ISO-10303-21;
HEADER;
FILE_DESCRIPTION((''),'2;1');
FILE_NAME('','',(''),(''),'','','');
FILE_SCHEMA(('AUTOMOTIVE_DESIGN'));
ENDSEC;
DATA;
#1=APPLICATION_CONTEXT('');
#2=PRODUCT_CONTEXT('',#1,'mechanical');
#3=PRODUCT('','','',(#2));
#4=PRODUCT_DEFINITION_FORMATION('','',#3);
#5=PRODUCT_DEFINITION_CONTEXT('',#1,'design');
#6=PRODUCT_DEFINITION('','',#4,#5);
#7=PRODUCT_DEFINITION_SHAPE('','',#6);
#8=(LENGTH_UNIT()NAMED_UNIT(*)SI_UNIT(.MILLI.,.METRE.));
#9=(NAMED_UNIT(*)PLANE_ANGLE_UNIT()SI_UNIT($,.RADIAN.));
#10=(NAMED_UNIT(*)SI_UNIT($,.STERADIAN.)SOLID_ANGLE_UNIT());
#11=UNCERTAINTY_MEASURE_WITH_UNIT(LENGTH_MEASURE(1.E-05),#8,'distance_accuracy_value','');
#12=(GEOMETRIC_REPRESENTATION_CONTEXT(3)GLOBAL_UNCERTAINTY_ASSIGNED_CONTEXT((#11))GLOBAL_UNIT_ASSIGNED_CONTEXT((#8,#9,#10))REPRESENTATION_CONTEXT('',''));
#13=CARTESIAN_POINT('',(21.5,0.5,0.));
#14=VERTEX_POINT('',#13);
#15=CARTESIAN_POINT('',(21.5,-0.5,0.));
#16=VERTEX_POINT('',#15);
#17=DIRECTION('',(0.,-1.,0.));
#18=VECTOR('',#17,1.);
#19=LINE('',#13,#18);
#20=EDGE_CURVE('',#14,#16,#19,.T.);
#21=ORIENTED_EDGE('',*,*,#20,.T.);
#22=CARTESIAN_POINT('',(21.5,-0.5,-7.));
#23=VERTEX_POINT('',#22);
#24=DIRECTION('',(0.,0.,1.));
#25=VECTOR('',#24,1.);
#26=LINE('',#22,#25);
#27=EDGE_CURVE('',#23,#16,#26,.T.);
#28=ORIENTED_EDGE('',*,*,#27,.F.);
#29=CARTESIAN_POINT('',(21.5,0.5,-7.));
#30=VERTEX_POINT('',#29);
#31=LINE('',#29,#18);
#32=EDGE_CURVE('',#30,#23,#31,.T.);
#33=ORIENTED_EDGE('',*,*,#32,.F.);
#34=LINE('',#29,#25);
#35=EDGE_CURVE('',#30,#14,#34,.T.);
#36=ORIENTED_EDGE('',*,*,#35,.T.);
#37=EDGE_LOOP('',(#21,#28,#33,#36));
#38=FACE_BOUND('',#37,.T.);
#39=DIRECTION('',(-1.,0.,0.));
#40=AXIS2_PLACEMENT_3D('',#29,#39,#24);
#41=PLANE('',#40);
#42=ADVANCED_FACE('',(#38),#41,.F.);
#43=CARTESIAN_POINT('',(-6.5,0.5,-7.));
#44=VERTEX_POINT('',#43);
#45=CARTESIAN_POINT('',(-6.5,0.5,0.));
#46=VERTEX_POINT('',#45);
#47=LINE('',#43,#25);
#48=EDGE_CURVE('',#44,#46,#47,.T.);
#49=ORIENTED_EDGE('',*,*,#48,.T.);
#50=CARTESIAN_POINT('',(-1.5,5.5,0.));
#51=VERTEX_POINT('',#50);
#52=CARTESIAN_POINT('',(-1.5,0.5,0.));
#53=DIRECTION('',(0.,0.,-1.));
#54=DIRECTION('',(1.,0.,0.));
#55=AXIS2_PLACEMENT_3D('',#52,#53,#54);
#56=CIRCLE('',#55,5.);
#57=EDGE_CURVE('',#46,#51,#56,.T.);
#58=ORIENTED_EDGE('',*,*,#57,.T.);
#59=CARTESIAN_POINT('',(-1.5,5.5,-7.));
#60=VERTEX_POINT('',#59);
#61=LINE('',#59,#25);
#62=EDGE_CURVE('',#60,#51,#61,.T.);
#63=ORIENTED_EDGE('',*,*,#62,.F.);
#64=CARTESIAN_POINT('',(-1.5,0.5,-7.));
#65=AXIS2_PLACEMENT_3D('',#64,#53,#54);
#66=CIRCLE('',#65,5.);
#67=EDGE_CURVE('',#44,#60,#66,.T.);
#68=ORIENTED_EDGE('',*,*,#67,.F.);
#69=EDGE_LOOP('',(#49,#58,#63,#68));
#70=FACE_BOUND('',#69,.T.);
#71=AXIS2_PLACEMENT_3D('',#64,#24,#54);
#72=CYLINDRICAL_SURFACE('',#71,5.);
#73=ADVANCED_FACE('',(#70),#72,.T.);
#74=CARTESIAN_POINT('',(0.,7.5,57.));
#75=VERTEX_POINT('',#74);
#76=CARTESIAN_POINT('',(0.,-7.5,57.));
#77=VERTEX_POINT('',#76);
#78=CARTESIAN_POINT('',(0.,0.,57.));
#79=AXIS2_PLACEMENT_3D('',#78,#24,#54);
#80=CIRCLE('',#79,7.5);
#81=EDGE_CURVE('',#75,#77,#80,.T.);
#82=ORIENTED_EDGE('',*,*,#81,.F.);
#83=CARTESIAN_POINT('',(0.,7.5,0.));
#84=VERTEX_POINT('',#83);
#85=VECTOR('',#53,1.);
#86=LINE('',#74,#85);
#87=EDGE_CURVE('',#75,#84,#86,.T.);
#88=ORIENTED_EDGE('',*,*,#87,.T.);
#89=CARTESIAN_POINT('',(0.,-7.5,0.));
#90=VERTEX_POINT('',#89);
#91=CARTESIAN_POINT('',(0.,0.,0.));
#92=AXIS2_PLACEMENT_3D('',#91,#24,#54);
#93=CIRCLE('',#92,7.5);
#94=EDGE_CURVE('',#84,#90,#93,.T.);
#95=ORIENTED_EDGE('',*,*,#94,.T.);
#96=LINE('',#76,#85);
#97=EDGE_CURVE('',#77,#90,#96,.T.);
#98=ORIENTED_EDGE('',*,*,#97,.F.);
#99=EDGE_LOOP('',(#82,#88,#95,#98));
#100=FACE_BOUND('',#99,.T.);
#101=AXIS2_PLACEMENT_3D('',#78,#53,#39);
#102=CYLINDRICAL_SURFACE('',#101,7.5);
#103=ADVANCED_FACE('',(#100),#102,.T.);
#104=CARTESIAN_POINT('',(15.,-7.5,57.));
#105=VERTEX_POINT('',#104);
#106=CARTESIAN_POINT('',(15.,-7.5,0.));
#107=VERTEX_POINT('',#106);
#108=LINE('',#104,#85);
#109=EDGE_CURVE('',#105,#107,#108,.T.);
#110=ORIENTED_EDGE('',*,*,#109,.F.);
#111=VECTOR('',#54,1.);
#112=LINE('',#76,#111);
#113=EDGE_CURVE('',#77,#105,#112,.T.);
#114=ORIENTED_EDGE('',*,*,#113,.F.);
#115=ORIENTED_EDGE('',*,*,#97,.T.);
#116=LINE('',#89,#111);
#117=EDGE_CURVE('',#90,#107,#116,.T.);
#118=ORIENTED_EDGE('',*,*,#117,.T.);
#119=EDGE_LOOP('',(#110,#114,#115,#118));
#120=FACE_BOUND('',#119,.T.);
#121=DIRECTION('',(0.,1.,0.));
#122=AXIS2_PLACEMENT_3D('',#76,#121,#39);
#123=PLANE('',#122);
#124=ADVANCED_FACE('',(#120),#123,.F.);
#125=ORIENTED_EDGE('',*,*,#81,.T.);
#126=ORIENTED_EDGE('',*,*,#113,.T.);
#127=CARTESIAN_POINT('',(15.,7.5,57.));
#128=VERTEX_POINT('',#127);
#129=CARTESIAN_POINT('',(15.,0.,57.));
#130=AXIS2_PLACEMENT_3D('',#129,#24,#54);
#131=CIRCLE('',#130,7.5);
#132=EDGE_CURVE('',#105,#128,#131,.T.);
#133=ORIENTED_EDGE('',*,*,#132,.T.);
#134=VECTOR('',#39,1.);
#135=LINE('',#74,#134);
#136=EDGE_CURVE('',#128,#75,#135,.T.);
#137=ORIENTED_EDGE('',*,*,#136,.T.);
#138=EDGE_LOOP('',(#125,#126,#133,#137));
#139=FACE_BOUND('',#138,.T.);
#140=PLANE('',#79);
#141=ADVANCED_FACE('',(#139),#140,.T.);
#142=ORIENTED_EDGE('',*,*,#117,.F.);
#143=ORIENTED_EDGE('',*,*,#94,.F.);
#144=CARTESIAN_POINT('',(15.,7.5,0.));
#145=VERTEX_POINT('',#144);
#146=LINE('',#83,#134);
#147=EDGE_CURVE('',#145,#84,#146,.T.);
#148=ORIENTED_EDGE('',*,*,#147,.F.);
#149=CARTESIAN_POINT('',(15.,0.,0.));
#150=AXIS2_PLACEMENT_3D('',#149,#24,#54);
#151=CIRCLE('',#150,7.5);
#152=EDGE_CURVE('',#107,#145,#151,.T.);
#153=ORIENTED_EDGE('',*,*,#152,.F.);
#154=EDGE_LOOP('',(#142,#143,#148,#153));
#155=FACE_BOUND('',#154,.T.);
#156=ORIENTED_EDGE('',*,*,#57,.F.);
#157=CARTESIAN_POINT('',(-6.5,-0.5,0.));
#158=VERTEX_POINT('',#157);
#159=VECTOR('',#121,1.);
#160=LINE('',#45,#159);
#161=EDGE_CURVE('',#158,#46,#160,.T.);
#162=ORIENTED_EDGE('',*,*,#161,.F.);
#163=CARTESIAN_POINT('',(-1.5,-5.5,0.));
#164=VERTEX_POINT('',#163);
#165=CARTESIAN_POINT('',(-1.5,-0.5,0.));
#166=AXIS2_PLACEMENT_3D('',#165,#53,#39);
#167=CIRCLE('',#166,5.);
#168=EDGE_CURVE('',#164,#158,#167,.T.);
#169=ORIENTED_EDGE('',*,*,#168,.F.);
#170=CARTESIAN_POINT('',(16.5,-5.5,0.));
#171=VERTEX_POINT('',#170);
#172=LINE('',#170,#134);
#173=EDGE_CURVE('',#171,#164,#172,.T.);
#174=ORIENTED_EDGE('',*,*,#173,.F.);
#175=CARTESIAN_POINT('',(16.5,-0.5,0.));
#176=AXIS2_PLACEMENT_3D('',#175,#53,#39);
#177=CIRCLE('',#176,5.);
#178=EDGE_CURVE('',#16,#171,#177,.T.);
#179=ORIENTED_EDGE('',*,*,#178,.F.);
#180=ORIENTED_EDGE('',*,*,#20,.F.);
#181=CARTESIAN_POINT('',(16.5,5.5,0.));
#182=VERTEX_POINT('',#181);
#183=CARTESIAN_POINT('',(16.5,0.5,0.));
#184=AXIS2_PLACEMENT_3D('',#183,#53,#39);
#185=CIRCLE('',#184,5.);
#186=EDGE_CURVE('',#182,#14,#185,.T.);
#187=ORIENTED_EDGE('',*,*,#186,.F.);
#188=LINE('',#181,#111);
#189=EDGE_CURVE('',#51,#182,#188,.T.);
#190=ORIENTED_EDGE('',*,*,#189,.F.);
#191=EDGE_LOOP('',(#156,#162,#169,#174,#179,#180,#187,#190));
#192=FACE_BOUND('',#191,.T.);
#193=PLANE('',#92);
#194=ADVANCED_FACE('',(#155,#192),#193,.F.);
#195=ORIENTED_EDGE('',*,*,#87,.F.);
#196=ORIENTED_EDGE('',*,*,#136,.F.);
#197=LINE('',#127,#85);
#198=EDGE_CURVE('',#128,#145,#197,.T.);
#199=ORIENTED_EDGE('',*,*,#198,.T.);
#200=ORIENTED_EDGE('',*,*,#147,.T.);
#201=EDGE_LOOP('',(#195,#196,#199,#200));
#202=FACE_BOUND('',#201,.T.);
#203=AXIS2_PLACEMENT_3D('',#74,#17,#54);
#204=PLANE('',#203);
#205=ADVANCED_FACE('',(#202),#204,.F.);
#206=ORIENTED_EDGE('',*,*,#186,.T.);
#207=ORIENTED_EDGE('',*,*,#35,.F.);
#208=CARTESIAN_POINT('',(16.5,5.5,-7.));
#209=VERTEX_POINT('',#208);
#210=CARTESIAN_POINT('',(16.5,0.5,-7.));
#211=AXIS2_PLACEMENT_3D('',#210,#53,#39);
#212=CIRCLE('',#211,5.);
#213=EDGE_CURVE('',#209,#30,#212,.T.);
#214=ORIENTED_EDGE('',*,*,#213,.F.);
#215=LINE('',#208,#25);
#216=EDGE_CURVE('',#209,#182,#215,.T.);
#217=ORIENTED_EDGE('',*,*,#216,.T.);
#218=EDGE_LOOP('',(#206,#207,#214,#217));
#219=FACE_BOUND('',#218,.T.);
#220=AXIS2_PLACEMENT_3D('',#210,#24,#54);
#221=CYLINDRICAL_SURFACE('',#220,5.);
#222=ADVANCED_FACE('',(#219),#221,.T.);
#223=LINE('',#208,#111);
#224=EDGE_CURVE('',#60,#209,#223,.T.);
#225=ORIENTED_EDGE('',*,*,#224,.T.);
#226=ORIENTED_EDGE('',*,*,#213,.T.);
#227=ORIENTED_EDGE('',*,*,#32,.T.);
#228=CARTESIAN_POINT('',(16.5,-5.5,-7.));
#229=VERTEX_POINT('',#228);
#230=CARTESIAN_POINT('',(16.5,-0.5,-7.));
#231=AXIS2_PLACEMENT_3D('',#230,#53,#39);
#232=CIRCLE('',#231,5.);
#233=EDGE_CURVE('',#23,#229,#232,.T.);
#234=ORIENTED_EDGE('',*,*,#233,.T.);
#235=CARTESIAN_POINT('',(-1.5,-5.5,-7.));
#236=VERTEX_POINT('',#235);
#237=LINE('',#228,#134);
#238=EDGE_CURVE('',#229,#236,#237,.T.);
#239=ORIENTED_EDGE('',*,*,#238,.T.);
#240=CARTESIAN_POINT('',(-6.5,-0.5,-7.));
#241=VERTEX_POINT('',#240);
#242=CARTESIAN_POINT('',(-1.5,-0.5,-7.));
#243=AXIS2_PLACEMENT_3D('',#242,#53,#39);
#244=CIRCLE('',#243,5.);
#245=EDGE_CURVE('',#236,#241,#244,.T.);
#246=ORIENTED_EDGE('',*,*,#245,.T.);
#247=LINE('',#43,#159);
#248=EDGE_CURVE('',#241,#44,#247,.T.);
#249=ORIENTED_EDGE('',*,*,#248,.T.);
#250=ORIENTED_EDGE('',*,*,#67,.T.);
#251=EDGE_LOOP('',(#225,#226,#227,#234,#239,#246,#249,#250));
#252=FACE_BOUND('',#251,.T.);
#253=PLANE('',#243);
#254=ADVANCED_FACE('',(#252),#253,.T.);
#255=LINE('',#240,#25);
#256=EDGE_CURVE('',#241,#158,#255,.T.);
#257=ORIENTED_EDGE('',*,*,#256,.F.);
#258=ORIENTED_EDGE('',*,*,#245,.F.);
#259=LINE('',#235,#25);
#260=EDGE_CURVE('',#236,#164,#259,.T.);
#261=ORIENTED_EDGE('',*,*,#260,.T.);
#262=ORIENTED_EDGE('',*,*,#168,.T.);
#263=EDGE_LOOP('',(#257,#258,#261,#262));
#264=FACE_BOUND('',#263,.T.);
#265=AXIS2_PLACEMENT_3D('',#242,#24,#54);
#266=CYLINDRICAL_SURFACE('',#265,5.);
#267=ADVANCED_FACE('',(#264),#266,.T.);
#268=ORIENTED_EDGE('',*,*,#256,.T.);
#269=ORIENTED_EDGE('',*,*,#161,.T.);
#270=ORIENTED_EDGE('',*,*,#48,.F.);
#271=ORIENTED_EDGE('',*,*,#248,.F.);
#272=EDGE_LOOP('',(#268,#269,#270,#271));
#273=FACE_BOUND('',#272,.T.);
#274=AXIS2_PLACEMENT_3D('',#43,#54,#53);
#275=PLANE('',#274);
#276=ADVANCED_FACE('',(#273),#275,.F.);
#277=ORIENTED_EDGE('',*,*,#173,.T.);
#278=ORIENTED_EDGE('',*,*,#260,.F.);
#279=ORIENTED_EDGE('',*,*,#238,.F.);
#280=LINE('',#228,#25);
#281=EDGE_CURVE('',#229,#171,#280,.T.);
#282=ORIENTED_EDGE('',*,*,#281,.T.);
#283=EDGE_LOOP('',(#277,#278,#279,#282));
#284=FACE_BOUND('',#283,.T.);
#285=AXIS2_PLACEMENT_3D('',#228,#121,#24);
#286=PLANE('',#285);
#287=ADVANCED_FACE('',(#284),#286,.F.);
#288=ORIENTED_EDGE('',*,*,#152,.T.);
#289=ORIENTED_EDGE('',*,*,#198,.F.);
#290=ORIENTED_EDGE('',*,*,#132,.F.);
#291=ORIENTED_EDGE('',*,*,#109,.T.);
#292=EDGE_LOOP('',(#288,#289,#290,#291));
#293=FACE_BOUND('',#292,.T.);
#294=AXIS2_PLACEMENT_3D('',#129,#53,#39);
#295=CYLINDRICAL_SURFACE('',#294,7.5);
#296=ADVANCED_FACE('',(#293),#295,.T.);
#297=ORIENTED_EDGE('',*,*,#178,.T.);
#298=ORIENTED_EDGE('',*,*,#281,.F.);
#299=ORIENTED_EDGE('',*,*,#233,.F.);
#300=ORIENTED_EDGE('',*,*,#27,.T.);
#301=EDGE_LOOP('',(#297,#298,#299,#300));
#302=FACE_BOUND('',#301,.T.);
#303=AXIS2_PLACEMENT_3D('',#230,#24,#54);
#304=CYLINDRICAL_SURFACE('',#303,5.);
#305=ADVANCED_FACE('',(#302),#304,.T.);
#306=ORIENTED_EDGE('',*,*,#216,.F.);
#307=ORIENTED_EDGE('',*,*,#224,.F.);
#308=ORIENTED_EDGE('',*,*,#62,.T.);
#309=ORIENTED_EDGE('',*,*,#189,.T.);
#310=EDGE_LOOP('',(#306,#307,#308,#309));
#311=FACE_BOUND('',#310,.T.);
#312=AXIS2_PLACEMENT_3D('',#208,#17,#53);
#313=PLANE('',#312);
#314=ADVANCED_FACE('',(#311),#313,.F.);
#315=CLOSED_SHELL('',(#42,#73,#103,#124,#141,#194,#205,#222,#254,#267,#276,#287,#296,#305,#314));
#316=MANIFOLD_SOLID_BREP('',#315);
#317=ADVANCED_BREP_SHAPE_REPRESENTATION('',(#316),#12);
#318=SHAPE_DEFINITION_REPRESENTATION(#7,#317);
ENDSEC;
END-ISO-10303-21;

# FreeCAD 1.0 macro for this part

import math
import FreeCAD as App
import Part
import Sketcher
from FreeCAD import Vector
Q = App.Units.Quantity

doc = App.newDocument("Part")
body = doc.addObject("PartDesign::Body", "Body")

sketch1 = doc.addObject("Sketcher::SketchObject", "Sketch")
body.addObject(sketch1)
sketch1.AttachmentSupport = (doc.XY_Plane, [""])
sketch1.MapMode = "FlatFace"
sketch1.addGeometry([
    Part.LineSegment(Vector(15, 8, 0), Vector(0, 8, 0)),
    Part.ArcOfCircle(Part.Circle(Vector(0, 0, 0), Vector(0, 0, 1), 8), math.radians(90), math.radians(270)),
    Part.LineSegment(Vector(0, -8, 0), Vector(15, -8, 0)),
    Part.ArcOfCircle(Part.Circle(Vector(15, 0, 0), Vector(0, 0, 1), 8), math.radians(-90), math.radians(90)),
], False)
sketch1.addConstraint([
    Sketcher.Constraint("Tangent", 0, 2, 1, 1),
    Sketcher.Constraint("Tangent", 1, 2, 2, 1),
    Sketcher.Constraint("Tangent", 2, 2, 3, 1),
    Sketcher.Constraint("Tangent", 3, 2, 0, 1),
    Sketcher.Constraint("Horizontal", 0),
    Sketcher.Constraint("Horizontal", 2),
    Sketcher.Constraint("Coincident", 1, 3, -1, 1),
    Sketcher.Constraint("Radius", 1, Q("7.5 mm")),
    Sketcher.Constraint("DistanceX", 0, 2, 0, 1, Q("15 mm")),
])
pad1 = doc.addObject("PartDesign::Pad", "Pad")
body.addObject(pad1)
pad1.Profile = sketch1
pad1.Length = 57

sketch2 = doc.addObject("Sketcher::SketchObject", "Sketch001")
body.addObject(sketch2)
sketch2.AttachmentSupport = (doc.XY_Plane, [""])
sketch2.MapMode = "FlatFace"
sketch2.addGeometry([
    Part.LineSegment(Vector(-1.5, 5.5, 0), Vector(16.5, 5.5, 0)),
    Part.ArcOfCircle(Part.Circle(Vector(16.5, 0.5, 0), Vector(0, 0, 1), 5), math.radians(0), math.radians(90)),
    Part.LineSegment(Vector(21.5, 0.5, 0), Vector(21.5, -0.5, 0)),
    Part.ArcOfCircle(Part.Circle(Vector(16.5, -0.5, 0), Vector(0, 0, 1), 5), math.radians(-90), math.radians(0)),
    Part.LineSegment(Vector(16.5, -5.5, 0), Vector(-1.5, -5.5, 0)),
    Part.ArcOfCircle(Part.Circle(Vector(-1.5, -0.5, 0), Vector(0, 0, 1), 5), math.radians(180), math.radians(270)),
    Part.LineSegment(Vector(-6.5, -0.5, 0), Vector(-6.5, 0.5, 0)),
    Part.ArcOfCircle(Part.Circle(Vector(-1.5, 0.5, 0), Vector(0, 0, 1), 5), math.radians(90), math.radians(180)),
], False)
sketch2.addConstraint([
    Sketcher.Constraint("Tangent", 0, 2, 1, 2),
    Sketcher.Constraint("Tangent", 1, 1, 2, 1),
    Sketcher.Constraint("Tangent", 2, 2, 3, 2),
    Sketcher.Constraint("Tangent", 3, 1, 4, 1),
    Sketcher.Constraint("Tangent", 4, 2, 5, 2),
    Sketcher.Constraint("Tangent", 5, 1, 6, 1),
    Sketcher.Constraint("Tangent", 6, 2, 7, 2),
    Sketcher.Constraint("Tangent", 7, 1, 0, 1),
    Sketcher.Constraint("Horizontal", 0),
    Sketcher.Constraint("Vertical", 2),
    Sketcher.Constraint("Horizontal", 4),
    Sketcher.Constraint("Vertical", 6),
    Sketcher.Constraint("Equal", 1, 3),
    Sketcher.Constraint("Equal", 3, 5),
    Sketcher.Constraint("Equal", 5, 7),
    Sketcher.Constraint("Radius", 1, Q("5 mm")),
    Sketcher.Constraint("DistanceX", 0, 1, 0, 2, Q("18 mm")),
    Sketcher.Constraint("DistanceY", 2, 2, 2, 1, Q("1 mm")),
    Sketcher.Constraint("DistanceX", -1, 1, 1, 3, Q("16.5 mm")),
    Sketcher.Constraint("DistanceY", -1, 1, 1, 3, Q("0.5 mm")),
])
pad2 = doc.addObject("PartDesign::Pad", "Pad001")
body.addObject(pad2)
pad2.Profile = sketch2
pad2.Length = 7
pad2.Reversed = True

doc.recompute()
